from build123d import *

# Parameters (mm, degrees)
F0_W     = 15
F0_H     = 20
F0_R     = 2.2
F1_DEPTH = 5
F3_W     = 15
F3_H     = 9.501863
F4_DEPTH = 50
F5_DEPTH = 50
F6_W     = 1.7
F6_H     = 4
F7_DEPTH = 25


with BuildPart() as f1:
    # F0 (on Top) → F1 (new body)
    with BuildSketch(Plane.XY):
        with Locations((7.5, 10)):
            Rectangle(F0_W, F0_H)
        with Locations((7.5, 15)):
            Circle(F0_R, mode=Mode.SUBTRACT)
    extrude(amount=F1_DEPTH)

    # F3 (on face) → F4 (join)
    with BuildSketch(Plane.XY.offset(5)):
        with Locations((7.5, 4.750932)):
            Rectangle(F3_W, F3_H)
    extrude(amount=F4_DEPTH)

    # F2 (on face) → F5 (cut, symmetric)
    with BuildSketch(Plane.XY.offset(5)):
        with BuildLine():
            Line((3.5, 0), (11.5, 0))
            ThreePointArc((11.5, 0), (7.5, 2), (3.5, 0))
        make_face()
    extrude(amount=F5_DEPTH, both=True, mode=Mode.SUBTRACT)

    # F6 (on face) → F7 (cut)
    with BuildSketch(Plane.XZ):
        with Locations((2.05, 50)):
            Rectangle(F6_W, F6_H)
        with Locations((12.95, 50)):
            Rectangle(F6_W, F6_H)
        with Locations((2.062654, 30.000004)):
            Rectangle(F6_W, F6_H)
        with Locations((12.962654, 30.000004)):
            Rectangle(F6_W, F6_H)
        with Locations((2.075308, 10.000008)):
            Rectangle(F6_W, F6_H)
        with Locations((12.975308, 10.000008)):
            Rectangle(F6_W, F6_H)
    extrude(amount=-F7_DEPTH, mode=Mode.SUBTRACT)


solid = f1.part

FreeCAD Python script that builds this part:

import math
import FreeCAD as App
import Part
import Sketcher
Q = App.Units.Quantity


def add_polygon(sketch, points):
    """Adds a closed chain of lines whose ends are joined by coincident constraints."""
    first, n = sketch.GeometryCount, len(points)
    for a, b in zip(points, points[1:] + points[:1]):
        sketch.addGeometry(Part.LineSegment(App.Vector(*a, 0), App.Vector(*b, 0)), False)
    for i in range(n):
        sketch.addConstraint(Sketcher.Constraint("Coincident", first + i, 2, first + (i + 1) % n, 1))

doc = App.newDocument("Part")
body = doc.addObject("PartDesign::Body", "Body")

# Sketch on XY plane
sketch1 = body.newObject("Sketcher::SketchObject", "Sketch")
sketch1.AttachmentSupport = (doc.getObject("XY_Plane"), [""])
sketch1.MapMode = "FlatFace"
add_polygon(sketch1, [(0, 20), (0, 0), (15, 0), (15, 20)])  # lines 0-3
sketch1.addGeometry(Part.Circle(App.Vector(7.5, 15, 0), App.Vector(0, 0, 1), 2.2), False)  # 4
sketch1.addConstraint([
    Sketcher.Constraint("Vertical", 0),
    Sketcher.Constraint("Horizontal", 1),
    Sketcher.Constraint("Vertical", 2),
    Sketcher.Constraint("Horizontal", 3),
    Sketcher.Constraint("Coincident", 0, 2, -1, 1),
    Sketcher.Constraint("Diameter", 4, Q("4.4 mm")),
    Sketcher.Constraint("DistanceX", 1, 1, 1, 2, Q("15 mm")),
    Sketcher.Constraint("DistanceY", 0, 2, 0, 1, Q("20 mm")),
    Sketcher.Constraint("DistanceY", -1, 1, 4, 3, Q("15 mm")),
    Sketcher.Constraint("DistanceX", -1, 1, 4, 3, Q("7.5 mm")),
])
pad1 = body.newObject("PartDesign::Pad", "Pad")
pad1.Profile = sketch1
pad1.Length = 5

# Sketch on XY plane
sketch2 = body.newObject("Sketcher::SketchObject", "Sketch001")
sketch2.AttachmentSupport = (doc.getObject("XY_Plane"), [""])
sketch2.MapMode = "FlatFace"
sketch2.AttachmentOffset = App.Placement(App.Vector(0, 0, 5), App.Rotation())
add_polygon(sketch2, [(0, 10), (0, 0), (15, 0), (15, 10)])  # lines 0-3
sketch2.addConstraint([
    Sketcher.Constraint("Vertical", 0),
    Sketcher.Constraint("Horizontal", 1),
    Sketcher.Constraint("Vertical", 2),
    Sketcher.Constraint("Horizontal", 3),
    Sketcher.Constraint("Coincident", 0, 2, -1, 1),
    Sketcher.Constraint("DistanceX", 1, 1, 1, 2, Q("15 mm")),
    Sketcher.Constraint("DistanceY", 0, 2, 0, 1, Q("9.501863 mm")),
])
pad2 = body.newObject("PartDesign::Pad", "Pad001")
pad2.Profile = sketch2
pad2.Length = 50

# Sketch on XY plane
sketch3 = body.newObject("Sketcher::SketchObject", "Sketch002")
sketch3.AttachmentSupport = (doc.getObject("XY_Plane"), [""])
sketch3.MapMode = "FlatFace"
sketch3.AttachmentOffset = App.Placement(App.Vector(0, 0, 5), App.Rotation())
sketch3.addGeometry([
    Part.LineSegment(App.Vector(4, 0, 0), App.Vector(12, 0, 0)),
    Part.ArcOfCircle(Part.Circle(App.Vector(8, -3, 0), App.Vector(0, 0, 1), 5), math.radians(37), math.radians(143)),
], False)
sketch3.addConstraint([
    Sketcher.Constraint("Coincident", 0, 1, 1, 2),
    Sketcher.Constraint("Coincident", 1, 1, 0, 2),
    Sketcher.Constraint("Horizontal", 0),
    Sketcher.Constraint("PointOnObject", 0, 1, -1),
    Sketcher.Constraint("Radius", 1, Q("5 mm")),
    Sketcher.Constraint("DistanceX", 0, 1, 0, 2, Q("8 mm")),
    Sketcher.Constraint("DistanceX", -1, 1, 1, 3, Q("7.5 mm")),
])
pocket1 = body.newObject("PartDesign::Pocket", "Pocket")
pocket1.Profile = sketch3
pocket1.Length = 100
pocket1.Midplane = True

# Sketch on XZ plane
sketch4 = body.newObject("Sketcher::SketchObject", "Sketch003")
sketch4.AttachmentSupport = (doc.getObject("XZ_Plane"), [""])
sketch4.MapMode = "FlatFace"
add_polygon(sketch4, [(1.2, 52), (1.2, 48), (2.9, 48), (2.9, 52)])  # lines 0-3
add_polygon(sketch4, [(12.1, 52), (12.1, 48), (13.8, 48), (13.8, 52)])  # lines 4-7
add_polygon(sketch4, [(1.2, 32), (1.2, 28), (2.9, 28), (2.9, 32)])  # lines 8-11
add_polygon(sketch4, [(12.1, 32), (12.1, 28), (13.8, 28), (13.8, 32)])  # lines 12-15
add_polygon(sketch4, [(1.2, 12), (1.2, 8), (2.9, 8), (2.9, 12)])  # lines 16-19
add_polygon(sketch4, [(12.1, 12), (12.1, 8), (13.8, 8), (13.8, 12)])  # lines 20-23
sketch4.addConstraint([
    Sketcher.Constraint("Vertical", 0),
    Sketcher.Constraint("Horizontal", 1),
    Sketcher.Constraint("Vertical", 2),
    Sketcher.Constraint("Horizontal", 3),
    Sketcher.Constraint("Vertical", 4),
    Sketcher.Constraint("Horizontal", 5),
    Sketcher.Constraint("Vertical", 6),
    Sketcher.Constraint("Horizontal", 7),
    Sketcher.Constraint("Vertical", 8),
    Sketcher.Constraint("Horizontal", 9),
    Sketcher.Constraint("Vertical", 10),
    Sketcher.Constraint("Horizontal", 11),
    Sketcher.Constraint("Vertical", 12),
    Sketcher.Constraint("Horizontal", 13),
    Sketcher.Constraint("Vertical", 14),
    Sketcher.Constraint("Horizontal", 15),
    Sketcher.Constraint("Vertical", 16),
    Sketcher.Constraint("Horizontal", 17),
    Sketcher.Constraint("Vertical", 18),
    Sketcher.Constraint("Horizontal", 19),
    Sketcher.Constraint("Vertical", 20),
    Sketcher.Constraint("Horizontal", 21),
    Sketcher.Constraint("Vertical", 22),
    Sketcher.Constraint("Horizontal", 23),
    Sketcher.Constraint("Horizontal", 1, 2, 4, 2),
    Sketcher.Constraint("Horizontal", 3, 2, 6, 2),
    Sketcher.Constraint("Horizontal", 9, 2, 12, 2),
    Sketcher.Constraint("Horizontal", 11, 2, 14, 2),
    Sketcher.Constraint("Horizontal", 17, 2, 20, 2),
    Sketcher.Constraint("Horizontal", 19, 2, 22, 2),
    Sketcher.Constraint("Equal", 3, 5),
    Sketcher.Constraint("Equal", 7, 9),
    Sketcher.Constraint("Equal", 11, 13),
    Sketcher.Constraint("Equal", 15, 17),
    Sketcher.Constraint("Equal", 19, 21),
    Sketcher.Constraint("Equal", 6, 8),
    Sketcher.Constraint("Equal", 14, 16),
    Sketcher.Constraint("DistanceY", 0, 2, 0, 1, Q("4 mm")),
    Sketcher.Constraint("DistanceX", 1, 1, 1, 2, Q("1.7 mm")),
    Sketcher.Constraint("DistanceY", -1, 1, 0, 2, Q("48 mm")),
    Sketcher.Constraint("DistanceX", -1, 1, 0, 2, Q("1.2 mm")),
    Sketcher.Constraint("DistanceX", -1, 1, 4, 2, Q("12.1 mm")),
    Sketcher.Constraint("DistanceX", 9, 2, 12, 2, Q("9.2 mm")),
    Sketcher.Constraint("DistanceX", 17, 2, 20, 2, Q("9.2 mm")),
    Sketcher.Constraint("DistanceX", -1, 1, 16, 2, Q("1.225308 mm")),
    Sketcher.Constraint("DistanceX", -1, 1, 8, 2, Q("1.212654 mm")),
    Sketcher.Constraint("DistanceY", -1, 1, 8, 2, Q("28.000004 mm")),
    Sketcher.Constraint("DistanceY", -1, 1, 16, 2, Q("8.000008 mm")),
])
pocket2 = body.newObject("PartDesign::Pocket", "Pocket001")
pocket2.Profile = sketch4
pocket2.Length = 25

doc.recompute()
